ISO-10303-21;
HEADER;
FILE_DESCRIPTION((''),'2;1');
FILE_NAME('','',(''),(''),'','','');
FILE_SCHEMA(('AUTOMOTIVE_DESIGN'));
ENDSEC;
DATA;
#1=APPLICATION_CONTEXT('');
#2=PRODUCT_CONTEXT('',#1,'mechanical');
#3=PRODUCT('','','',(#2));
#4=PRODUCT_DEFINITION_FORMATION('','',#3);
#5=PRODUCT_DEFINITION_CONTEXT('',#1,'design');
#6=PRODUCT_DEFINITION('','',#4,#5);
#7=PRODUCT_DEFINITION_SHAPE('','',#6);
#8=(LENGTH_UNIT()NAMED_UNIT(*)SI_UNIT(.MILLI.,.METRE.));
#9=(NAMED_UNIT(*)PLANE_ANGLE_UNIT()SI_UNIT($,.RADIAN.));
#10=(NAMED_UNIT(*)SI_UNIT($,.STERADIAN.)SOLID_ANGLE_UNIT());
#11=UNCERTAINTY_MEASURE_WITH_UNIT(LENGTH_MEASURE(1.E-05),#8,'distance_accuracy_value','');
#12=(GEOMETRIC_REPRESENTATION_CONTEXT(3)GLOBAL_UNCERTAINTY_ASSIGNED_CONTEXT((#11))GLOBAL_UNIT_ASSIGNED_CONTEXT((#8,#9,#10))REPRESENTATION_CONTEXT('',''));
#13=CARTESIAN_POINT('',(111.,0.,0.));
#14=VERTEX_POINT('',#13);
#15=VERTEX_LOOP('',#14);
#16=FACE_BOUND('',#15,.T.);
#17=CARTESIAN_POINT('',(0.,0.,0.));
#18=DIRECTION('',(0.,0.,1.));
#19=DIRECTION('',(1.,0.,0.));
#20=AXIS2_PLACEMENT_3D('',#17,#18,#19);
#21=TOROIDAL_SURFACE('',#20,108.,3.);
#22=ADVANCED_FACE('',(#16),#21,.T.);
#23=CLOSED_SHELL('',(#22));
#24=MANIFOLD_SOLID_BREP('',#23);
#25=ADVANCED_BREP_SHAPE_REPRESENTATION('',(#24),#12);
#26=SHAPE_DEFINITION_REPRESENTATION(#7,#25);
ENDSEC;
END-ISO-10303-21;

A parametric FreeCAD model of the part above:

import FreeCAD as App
import Part
import Sketcher
from FreeCAD import Vector

doc = App.newDocument("Part")
params = doc.addObject("Spreadsheet::Sheet", "Params")
for row, (alias, value) in enumerate([
    ("sketch1_diameter", "6 mm"),
    ("revolution_angle", "360 deg"),
], start=1):
    params.set(f"A{row}", alias)
    params.set(f"B{row}", "=" + value)
    params.setAlias(f"B{row}", alias)

body = doc.addObject("PartDesign::Body", "Body")

sketch1 = body.newObject("Sketcher::SketchObject", "Sketch")
sketch1.AttachmentSupport = (doc.getObject("YZ_Plane"), [""])
sketch1.MapMode = "FlatFace"
sketch1.addGeometry(Part.Circle(Vector(-108, 0, 0), Vector(0, 0, 1), 3), False)
sketch1.addConstraint(Sketcher.Constraint("PointOnObject", 0, 3, -1))
sketch1.addConstraint(Sketcher.Constraint("Diameter", 0, 6.0))
sketch1.addConstraint(Sketcher.Constraint("DistanceX", 0, 3, -1, 1, 108.0))
sketch1.setExpression("Constraints[1]", "Params.sketch1_diameter")
revolution = body.newObject("PartDesign::Revolution", "Revolution")
revolution.Profile = sketch1
revolution.ReferenceAxis = (sketch1, ["V_Axis"])
revolution.setExpression("Angle", "Params.revolution_angle")

doc.recompute()
